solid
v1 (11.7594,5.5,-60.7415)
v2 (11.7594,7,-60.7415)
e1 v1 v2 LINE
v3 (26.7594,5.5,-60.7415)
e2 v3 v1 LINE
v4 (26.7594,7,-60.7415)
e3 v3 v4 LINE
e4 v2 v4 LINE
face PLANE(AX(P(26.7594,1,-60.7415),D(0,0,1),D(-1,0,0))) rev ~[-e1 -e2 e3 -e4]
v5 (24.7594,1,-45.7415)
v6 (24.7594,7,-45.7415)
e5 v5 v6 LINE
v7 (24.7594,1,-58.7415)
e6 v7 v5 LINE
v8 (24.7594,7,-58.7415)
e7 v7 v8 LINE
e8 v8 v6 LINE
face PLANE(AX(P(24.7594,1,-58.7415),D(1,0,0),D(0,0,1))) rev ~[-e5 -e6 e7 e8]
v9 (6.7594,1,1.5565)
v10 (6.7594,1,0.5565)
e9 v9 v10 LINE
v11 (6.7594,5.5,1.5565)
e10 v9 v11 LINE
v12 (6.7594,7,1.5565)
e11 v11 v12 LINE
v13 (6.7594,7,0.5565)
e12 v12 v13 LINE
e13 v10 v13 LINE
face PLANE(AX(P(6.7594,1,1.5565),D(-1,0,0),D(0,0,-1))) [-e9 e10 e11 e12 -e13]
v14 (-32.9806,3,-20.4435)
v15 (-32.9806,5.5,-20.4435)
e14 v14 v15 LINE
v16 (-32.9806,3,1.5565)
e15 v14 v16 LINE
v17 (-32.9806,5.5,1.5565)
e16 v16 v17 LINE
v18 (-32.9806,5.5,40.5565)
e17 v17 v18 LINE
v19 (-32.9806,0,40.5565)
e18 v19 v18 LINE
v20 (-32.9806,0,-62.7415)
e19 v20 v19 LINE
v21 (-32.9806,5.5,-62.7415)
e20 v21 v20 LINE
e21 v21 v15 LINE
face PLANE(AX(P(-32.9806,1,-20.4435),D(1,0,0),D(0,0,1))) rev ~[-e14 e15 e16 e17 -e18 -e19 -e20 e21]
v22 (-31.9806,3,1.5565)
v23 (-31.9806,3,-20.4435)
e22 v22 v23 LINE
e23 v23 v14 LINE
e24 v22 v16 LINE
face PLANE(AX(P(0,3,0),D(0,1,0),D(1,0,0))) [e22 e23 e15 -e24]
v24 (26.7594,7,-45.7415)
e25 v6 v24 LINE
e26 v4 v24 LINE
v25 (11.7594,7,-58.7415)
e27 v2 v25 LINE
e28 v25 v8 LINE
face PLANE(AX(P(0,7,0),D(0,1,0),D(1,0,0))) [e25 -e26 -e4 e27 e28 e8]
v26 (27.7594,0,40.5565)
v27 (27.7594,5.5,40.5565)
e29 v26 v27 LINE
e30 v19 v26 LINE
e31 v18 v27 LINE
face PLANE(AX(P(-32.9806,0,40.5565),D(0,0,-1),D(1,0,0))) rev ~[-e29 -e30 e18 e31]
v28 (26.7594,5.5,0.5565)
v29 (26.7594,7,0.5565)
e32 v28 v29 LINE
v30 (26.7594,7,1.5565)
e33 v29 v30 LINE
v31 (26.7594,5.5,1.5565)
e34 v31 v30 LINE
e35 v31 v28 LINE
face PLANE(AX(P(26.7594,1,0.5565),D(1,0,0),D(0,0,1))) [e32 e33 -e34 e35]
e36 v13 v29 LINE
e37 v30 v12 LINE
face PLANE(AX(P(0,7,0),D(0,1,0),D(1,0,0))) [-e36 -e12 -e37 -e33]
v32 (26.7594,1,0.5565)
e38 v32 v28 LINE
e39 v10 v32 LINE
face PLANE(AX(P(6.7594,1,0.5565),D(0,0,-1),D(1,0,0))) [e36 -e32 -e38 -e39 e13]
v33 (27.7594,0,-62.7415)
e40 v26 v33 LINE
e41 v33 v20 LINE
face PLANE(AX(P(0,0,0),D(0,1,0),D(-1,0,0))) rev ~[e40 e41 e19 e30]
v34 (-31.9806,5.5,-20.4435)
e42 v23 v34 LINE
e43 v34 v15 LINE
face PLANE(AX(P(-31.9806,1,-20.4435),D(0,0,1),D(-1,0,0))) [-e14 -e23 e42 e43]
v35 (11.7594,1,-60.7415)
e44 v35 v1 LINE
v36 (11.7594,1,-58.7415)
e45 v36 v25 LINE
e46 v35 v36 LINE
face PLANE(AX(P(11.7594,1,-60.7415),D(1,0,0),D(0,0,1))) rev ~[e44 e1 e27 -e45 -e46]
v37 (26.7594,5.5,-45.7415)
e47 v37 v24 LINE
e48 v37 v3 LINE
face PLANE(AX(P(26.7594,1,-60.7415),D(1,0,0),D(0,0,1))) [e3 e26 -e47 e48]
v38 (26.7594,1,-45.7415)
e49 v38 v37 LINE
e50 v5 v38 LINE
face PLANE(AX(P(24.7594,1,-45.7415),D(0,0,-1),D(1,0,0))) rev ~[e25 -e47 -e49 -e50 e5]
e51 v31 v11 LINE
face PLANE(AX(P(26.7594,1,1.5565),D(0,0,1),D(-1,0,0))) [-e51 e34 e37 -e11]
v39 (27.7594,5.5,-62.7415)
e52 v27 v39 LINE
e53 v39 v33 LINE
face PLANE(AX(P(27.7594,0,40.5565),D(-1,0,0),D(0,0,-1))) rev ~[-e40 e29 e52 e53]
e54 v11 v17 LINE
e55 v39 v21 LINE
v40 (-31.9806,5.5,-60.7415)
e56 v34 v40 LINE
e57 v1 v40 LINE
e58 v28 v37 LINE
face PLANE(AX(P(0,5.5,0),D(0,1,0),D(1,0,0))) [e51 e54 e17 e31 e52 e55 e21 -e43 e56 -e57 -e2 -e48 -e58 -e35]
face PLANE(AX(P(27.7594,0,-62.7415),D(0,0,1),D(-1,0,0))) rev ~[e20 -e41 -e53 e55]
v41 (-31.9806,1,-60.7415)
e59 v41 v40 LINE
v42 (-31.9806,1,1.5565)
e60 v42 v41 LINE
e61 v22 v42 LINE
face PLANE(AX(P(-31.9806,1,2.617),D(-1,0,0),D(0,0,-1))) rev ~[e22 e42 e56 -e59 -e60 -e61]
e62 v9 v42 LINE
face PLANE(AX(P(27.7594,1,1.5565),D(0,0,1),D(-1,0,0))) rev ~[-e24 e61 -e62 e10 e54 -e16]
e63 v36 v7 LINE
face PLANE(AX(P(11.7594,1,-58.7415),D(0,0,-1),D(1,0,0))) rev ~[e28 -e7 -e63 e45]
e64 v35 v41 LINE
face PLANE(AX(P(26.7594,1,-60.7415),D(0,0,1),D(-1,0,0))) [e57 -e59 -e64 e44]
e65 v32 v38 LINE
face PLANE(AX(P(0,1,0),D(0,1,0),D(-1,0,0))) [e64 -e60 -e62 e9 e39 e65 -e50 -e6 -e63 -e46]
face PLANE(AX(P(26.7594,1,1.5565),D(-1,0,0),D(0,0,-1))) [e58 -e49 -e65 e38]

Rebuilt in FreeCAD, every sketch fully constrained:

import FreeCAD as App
import Part
import Sketcher
from FreeCAD import Vector
Q = App.Units.Quantity

doc = App.newDocument("Part")
body = doc.addObject("PartDesign::Body", "Body")

sketch1 = body.newObject("Sketcher::SketchObject", "Sketch")
sketch1.AttachmentSupport = (doc.getObject("XZ_Plane"), [""])
sketch1.MapMode = "FlatFace"
sketch1.addGeometry([
    Part.LineSegment(Vector(-33, -63, 0), Vector(-33, 41, 0)),
    Part.LineSegment(Vector(-33, 41, 0), Vector(28, 41, 0)),
    Part.LineSegment(Vector(28, 41, 0), Vector(28, -63, 0)),
    Part.LineSegment(Vector(28, -63, 0), Vector(-33, -63, 0)),
], False)
sketch1.addConstraint([
    Sketcher.Constraint("Coincident", 0, 2, 1, 1),
    Sketcher.Constraint("Coincident", 1, 2, 2, 1),
    Sketcher.Constraint("Coincident", 2, 2, 3, 1),
    Sketcher.Constraint("Coincident", 3, 2, 0, 1),
    Sketcher.Constraint("Vertical", 0),
    Sketcher.Constraint("Horizontal", 1),
    Sketcher.Constraint("Vertical", 2),
    Sketcher.Constraint("Horizontal", 3),
    Sketcher.Constraint("DistanceX", 1, 1, 1, 2, Q("60.74 mm")),
    Sketcher.Constraint("DistanceY", 0, 1, 0, 2, Q("103.298 mm")),
    Sketcher.Constraint("DistanceX", 0, 2, -1, 1, Q("32.9806 mm")),
    Sketcher.Constraint("DistanceY", -1, 1, 0, 2, Q("40.5565 mm")),
])
pad1 = body.newObject("PartDesign::Pad", "Pad")
pad1.Profile = sketch1
pad1.Length = 1
pad1.Reversed = True

sketch2 = body.newObject("Sketcher::SketchObject", "Sketch001")
sketch2.AttachmentSupport = (doc.getObject("XZ_Plane"), [""])
sketch2.MapMode = "FlatFace"
sketch2.AttachmentOffset = App.Placement(Vector(0, 0, -1), App.Rotation())
sketch2.addGeometry([
    Part.LineSegment(Vector(28, 2, 0), Vector(-33, 2, 0)),
    Part.LineSegment(Vector(-33, 2, 0), Vector(-33, 41, 0)),
    Part.LineSegment(Vector(-33, 41, 0), Vector(28, 41, 0)),
    Part.LineSegment(Vector(28, 41, 0), Vector(28, 2, 0)),
], False)
sketch2.addConstraint([
    Sketcher.Constraint("Coincident", 0, 2, 1, 1),
    Sketcher.Constraint("Coincident", 1, 2, 2, 1),
    Sketcher.Constraint("Coincident", 2, 2, 3, 1),
    Sketcher.Constraint("Coincident", 3, 2, 0, 1),
    Sketcher.Constraint("Horizontal", 0),
    Sketcher.Constraint("Vertical", 1),
    Sketcher.Constraint("Horizontal", 2),
    Sketcher.Constraint("Vertical", 3),
    Sketcher.Constraint("DistanceY", 1, 1, 1, 2, Q("39 mm")),
    Sketcher.Constraint("DistanceX", 0, 2, 0, 1, Q("60.74 mm")),
    Sketcher.Constraint("DistanceX", 0, 2, -1, 1, Q("32.9806 mm")),
    Sketcher.Constraint("DistanceY", -1, 1, 0, 2, Q("1.5565 mm")),
])
pad2 = body.newObject("PartDesign::Pad", "Pad001")
pad2.Profile = sketch2
pad2.Length = 4.5
pad2.Reversed = True

sketch3 = body.newObject("Sketcher::SketchObject", "Sketch002")
sketch3.AttachmentSupport = (doc.getObject("XZ_Plane"), [""])
sketch3.MapMode = "FlatFace"
sketch3.AttachmentOffset = App.Placement(Vector(0, 0, -1), App.Rotation())
sketch3.addGeometry([
    Part.LineSegment(Vector(26.8, 1.6, 0), Vector(27.8, 1.6, 0)),
    Part.LineSegment(Vector(27.8, 1.6, 0), Vector(27.8, -62.7, 0)),
    Part.LineSegment(Vector(27.8, -62.7, 0), Vector(-33, -62.7, 0)),
    Part.LineSegment(Vector(-33, -62.7, 0), Vector(-33, -20.4, 0)),
    Part.LineSegment(Vector(-33, -20.4, 0), Vector(-32, -20.4, 0)),
    Part.LineSegment(Vector(-32, -20.4, 0), Vector(-32, -60.7, 0)),
    Part.LineSegment(Vector(-32, -60.7, 0), Vector(26.8, -60.7, 0)),
    Part.LineSegment(Vector(26.8, -60.7, 0), Vector(26.8, 1.6, 0)),
], False)
sketch3.addConstraint([
    Sketcher.Constraint("Coincident", 0, 2, 1, 1),
    Sketcher.Constraint("Coincident", 1, 2, 2, 1),
    Sketcher.Constraint("Coincident", 2, 2, 3, 1),
    Sketcher.Constraint("Coincident", 3, 2, 4, 1),
    Sketcher.Constraint("Coincident", 4, 2, 5, 1),
    Sketcher.Constraint("Coincident", 5, 2, 6, 1),
    Sketcher.Constraint("Coincident", 6, 2, 7, 1),
    Sketcher.Constraint("Coincident", 7, 2, 0, 1),
    Sketcher.Constraint("Horizontal", 0),
    Sketcher.Constraint("Vertical", 1),
    Sketcher.Constraint("Horizontal", 2),
    Sketcher.Constraint("Vertical", 3),
    Sketcher.Constraint("Horizontal", 4),
    Sketcher.Constraint("Vertical", 5),
    Sketcher.Constraint("Horizontal", 6),
    Sketcher.Constraint("Vertical", 7),
    Sketcher.Constraint("Equal", 0, 4),
    Sketcher.Constraint("DistanceX", 0, 1, 0, 2, Q("1 mm")),
    Sketcher.Constraint("DistanceY", 3, 2, 0, 2, Q("22 mm")),
    Sketcher.Constraint("DistanceY", 2, 2, 5, 2, Q("2 mm")),
    Sketcher.Constraint("DistanceX", 2, 2, 2, 1, Q("60.74 mm")),
    Sketcher.Constraint("DistanceY", 1, 2, 1, 1, Q("64.298 mm")),
    Sketcher.Constraint("DistanceX", -1, 1, 0, 2, Q("27.7594 mm")),
    Sketcher.Constraint("DistanceY", -1, 1, 0, 2, Q("1.5565 mm")),
])
pad3 = body.newObject("PartDesign::Pad", "Pad002")
pad3.Profile = sketch3
pad3.Length = 4.5
pad3.Reversed = True

sketch4 = body.newObject("Sketcher::SketchObject", "Sketch003")
sketch4.AttachmentSupport = (doc.getObject("XZ_Plane"), [""])
sketch4.MapMode = "FlatFace"
sketch4.AttachmentOffset = App.Placement(Vector(0, 0, -1), App.Rotation())
sketch4.addGeometry([
    Part.LineSegment(Vector(-32, -20.4, 0), Vector(-33, -20.4, 0)),
    Part.LineSegment(Vector(-33, -20.4, 0), Vector(-33, 2.6, 0)),
    Part.LineSegment(Vector(-33, 2.6, 0), Vector(-32, 2.6, 0)),
    Part.LineSegment(Vector(-32, 2.6, 0), Vector(-32, -20.4, 0)),
], False)
sketch4.addConstraint([
    Sketcher.Constraint("Coincident", 0, 2, 1, 1),
    Sketcher.Constraint("Coincident", 1, 2, 2, 1),
    Sketcher.Constraint("Coincident", 2, 2, 3, 1),
    Sketcher.Constraint("Coincident", 3, 2, 0, 1),
    Sketcher.Constraint("Horizontal", 0),
    Sketcher.Constraint("Vertical", 1),
    Sketcher.Constraint("Horizontal", 2),
    Sketcher.Constraint("Vertical", 3),
    Sketcher.Constraint("DistanceX", 0, 2, 0, 1, Q("1 mm")),
    Sketcher.Constraint("DistanceY", 1, 1, 1, 2, Q("23.0605 mm")),
    Sketcher.Constraint("DistanceY", -1, 1, 1, 2, Q("2.617 mm")),
    Sketcher.Constraint("DistanceX", 0, 2, -1, 1, Q("32.9806 mm")),
])
pad4 = body.newObject("PartDesign::Pad", "Pad003")
pad4.Profile = sketch4
pad4.Length = 2
pad4.Reversed = True

sketch5 = body.newObject("Sketcher::SketchObject", "Sketch004")
sketch5.AttachmentSupport = (doc.getObject("XZ_Plane"), [""])
sketch5.MapMode = "FlatFace"
sketch5.AttachmentOffset = App.Placement(Vector(0, 0, -1), App.Rotation())
sketch5.addGeometry([
    Part.LineSegment(Vector(26.8, 1.6, 0), Vector(26.8, 0.6, 0)),
    Part.LineSegment(Vector(26.8, 0.6, 0), Vector(6.8, 0.6, 0)),
    Part.LineSegment(Vector(6.8, 0.6, 0), Vector(6.8, 1.6, 0)),
    Part.LineSegment(Vector(6.8, 1.6, 0), Vector(26.8, 1.6, 0)),
    Part.LineSegment(Vector(26.8, -60.7, 0), Vector(11.8, -60.7, 0)),
    Part.LineSegment(Vector(11.8, -60.7, 0), Vector(11.8, -58.7, 0)),
    Part.LineSegment(Vector(11.8, -58.7, 0), Vector(24.8, -58.7, 0)),
    Part.LineSegment(Vector(24.8, -58.7, 0), Vector(24.8, -45.7, 0)),
    Part.LineSegment(Vector(24.8, -45.7, 0), Vector(26.8, -45.7, 0)),
    Part.LineSegment(Vector(26.8, -45.7, 0), Vector(26.8, -60.7, 0)),
], False)
sketch5.addConstraint([
    Sketcher.Constraint("Coincident", 0, 2, 1, 1),
    Sketcher.Constraint("Coincident", 1, 2, 2, 1),
    Sketcher.Constraint("Coincident", 2, 2, 3, 1),
    Sketcher.Constraint("Coincident", 3, 2, 0, 1),
    Sketcher.Constraint("Coincident", 4, 2, 5, 1),
    Sketcher.Constraint("Coincident", 5, 2, 6, 1),
    Sketcher.Constraint("Coincident", 6, 2, 7, 1),
    Sketcher.Constraint("Coincident", 7, 2, 8, 1),
    Sketcher.Constraint("Coincident", 8, 2, 9, 1),
    Sketcher.Constraint("Coincident", 9, 2, 4, 1),
    Sketcher.Constraint("Vertical", 0),
    Sketcher.Constraint("Horizontal", 1),
    Sketcher.Constraint("Vertical", 2),
    Sketcher.Constraint("Horizontal", 3),
    Sketcher.Constraint("Horizontal", 4),
    Sketcher.Constraint("Vertical", 5),
    Sketcher.Constraint("Horizontal", 6),
    Sketcher.Constraint("Vertical", 7),
    Sketcher.Constraint("Horizontal", 8),
    Sketcher.Constraint("Vertical", 9),
    Sketcher.Constraint("Vertical", 3, 2, 8, 2),
    Sketcher.Constraint("Equal", 8, 5),
    Sketcher.Constraint("Equal", 6, 7),
    Sketcher.Constraint("DistanceX", 1, 2, 1, 1, Q("20 mm")),
    Sketcher.Constraint("DistanceX", 4, 2, 4, 1, Q("15 mm")),
    Sketcher.Constraint("DistanceX", 8, 1, 8, 2, Q("2 mm")),
    Sketcher.Constraint("DistanceY", 0, 2, 0, 1, Q("1 mm")),
    Sketcher.Constraint("DistanceY", 4, 2, 1, 2, Q("61.298 mm")),
    Sketcher.Constraint("DistanceX", -1, 1, 0, 2, Q("26.7594 mm")),
    Sketcher.Constraint("DistanceY", -1, 1, 0, 2, Q("0.5565 mm")),
])
pad5 = body.newObject("PartDesign::Pad", "Pad004")
pad5.Profile = sketch5
pad5.Length = 6
pad5.Reversed = True

doc.recompute()
